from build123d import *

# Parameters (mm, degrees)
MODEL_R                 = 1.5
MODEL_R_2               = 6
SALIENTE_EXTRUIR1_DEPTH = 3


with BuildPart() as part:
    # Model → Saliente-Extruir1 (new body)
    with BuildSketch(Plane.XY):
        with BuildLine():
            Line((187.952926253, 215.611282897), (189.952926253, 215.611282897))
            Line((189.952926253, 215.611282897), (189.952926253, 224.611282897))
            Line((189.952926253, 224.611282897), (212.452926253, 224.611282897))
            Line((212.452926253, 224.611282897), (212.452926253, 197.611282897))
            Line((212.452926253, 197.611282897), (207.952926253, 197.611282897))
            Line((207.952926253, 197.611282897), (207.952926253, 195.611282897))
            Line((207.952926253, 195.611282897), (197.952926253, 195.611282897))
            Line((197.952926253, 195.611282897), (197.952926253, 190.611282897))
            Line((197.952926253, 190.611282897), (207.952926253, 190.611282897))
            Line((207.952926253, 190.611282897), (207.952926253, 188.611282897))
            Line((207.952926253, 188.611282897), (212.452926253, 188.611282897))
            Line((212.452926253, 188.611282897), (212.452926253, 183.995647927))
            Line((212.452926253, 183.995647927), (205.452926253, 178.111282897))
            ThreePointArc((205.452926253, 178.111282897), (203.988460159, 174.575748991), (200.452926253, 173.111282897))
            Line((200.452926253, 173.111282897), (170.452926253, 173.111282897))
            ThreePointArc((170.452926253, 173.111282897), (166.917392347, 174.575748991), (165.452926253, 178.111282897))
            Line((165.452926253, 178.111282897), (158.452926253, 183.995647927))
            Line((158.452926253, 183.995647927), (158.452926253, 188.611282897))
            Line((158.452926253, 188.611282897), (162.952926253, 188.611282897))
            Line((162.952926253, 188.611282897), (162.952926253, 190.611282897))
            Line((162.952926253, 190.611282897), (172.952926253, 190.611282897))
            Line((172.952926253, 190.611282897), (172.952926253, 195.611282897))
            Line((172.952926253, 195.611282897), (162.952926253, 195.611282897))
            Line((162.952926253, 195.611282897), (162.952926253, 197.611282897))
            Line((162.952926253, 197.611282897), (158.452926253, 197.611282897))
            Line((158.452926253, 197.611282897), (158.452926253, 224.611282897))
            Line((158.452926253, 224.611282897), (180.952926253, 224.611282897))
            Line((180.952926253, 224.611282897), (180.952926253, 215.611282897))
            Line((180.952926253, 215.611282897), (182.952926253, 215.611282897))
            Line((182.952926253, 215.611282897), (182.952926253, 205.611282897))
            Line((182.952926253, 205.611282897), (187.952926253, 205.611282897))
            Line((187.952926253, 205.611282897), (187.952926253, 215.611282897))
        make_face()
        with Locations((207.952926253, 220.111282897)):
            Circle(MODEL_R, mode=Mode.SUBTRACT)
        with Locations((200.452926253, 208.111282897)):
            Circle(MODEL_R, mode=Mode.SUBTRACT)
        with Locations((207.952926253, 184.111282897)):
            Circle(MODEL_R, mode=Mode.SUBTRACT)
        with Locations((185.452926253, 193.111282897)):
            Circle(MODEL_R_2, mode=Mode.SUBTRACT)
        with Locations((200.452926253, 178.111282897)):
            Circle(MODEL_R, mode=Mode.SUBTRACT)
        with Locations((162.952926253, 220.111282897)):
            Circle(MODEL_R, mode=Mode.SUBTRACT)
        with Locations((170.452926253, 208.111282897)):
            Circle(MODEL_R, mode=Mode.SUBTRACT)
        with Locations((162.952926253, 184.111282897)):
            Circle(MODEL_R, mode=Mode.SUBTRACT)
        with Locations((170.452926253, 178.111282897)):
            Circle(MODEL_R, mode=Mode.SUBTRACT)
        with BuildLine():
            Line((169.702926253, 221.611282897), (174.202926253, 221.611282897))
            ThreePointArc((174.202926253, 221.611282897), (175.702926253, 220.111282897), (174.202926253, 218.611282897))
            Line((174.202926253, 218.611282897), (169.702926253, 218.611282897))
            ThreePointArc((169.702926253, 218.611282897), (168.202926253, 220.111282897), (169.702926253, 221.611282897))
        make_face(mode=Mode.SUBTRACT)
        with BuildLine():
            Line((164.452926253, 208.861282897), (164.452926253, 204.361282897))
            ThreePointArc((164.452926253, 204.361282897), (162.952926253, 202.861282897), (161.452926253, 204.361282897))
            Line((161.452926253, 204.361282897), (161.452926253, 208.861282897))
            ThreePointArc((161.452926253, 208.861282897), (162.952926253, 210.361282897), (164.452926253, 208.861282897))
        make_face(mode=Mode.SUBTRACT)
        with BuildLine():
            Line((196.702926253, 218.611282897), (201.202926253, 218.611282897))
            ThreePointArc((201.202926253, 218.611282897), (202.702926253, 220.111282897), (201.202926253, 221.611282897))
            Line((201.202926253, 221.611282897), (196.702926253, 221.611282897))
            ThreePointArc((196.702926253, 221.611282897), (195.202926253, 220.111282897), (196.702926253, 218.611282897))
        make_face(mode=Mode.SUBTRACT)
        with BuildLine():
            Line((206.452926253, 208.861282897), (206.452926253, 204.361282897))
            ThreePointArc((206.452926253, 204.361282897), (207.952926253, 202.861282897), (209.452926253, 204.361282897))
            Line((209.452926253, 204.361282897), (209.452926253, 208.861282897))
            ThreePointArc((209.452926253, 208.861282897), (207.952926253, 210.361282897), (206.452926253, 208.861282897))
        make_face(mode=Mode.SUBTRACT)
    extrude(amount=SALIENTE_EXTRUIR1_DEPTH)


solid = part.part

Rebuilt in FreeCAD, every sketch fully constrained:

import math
import FreeCAD as App
import Part
import Sketcher

V = App.Vector
Q = App.Units.Quantity

doc = App.newDocument("Part")
body = doc.addObject("PartDesign::Body", "Body")

# Sketch on XY plane
sketch1 = body.newObject("Sketcher::SketchObject", "Sketch")
sketch1.AttachmentSupport = (doc.getObject("XY_Plane"), [""])
sketch1.MapMode = "FlatFace"
sketch1.addGeometry([
    Part.LineSegment(V(190, 215.6, 0), V(188, 215.6, 0)),  # 0
    Part.LineSegment(V(188, 215.6, 0), V(188, 205.6, 0)),  # 1
    Part.LineSegment(V(188, 205.6, 0), V(183, 205.6, 0)),  # 2
    Part.LineSegment(V(183, 205.6, 0), V(183, 215.6, 0)),  # 3
    Part.LineSegment(V(183, 215.6, 0), V(181, 215.6, 0)),  # 4
    Part.LineSegment(V(181, 215.6, 0), V(181, 224.6, 0)),  # 5
    Part.LineSegment(V(181, 224.6, 0), V(158.5, 224.6, 0)),  # 6
    Part.LineSegment(V(158.5, 224.6, 0), V(158.5, 197.6, 0)),  # 7
    Part.LineSegment(V(158.5, 197.6, 0), V(163, 197.6, 0)),  # 8
    Part.LineSegment(V(163, 197.6, 0), V(163, 195.6, 0)),  # 9
    Part.LineSegment(V(163, 195.6, 0), V(173, 195.6, 0)),  # 10
    Part.LineSegment(V(173, 195.6, 0), V(173, 190.6, 0)),  # 11
    Part.LineSegment(V(173, 190.6, 0), V(163, 190.6, 0)),  # 12
    Part.LineSegment(V(163, 190.6, 0), V(163, 188.6, 0)),  # 13
    Part.LineSegment(V(163, 188.6, 0), V(158.5, 188.6, 0)),  # 14
    Part.LineSegment(V(158.5, 188.6, 0), V(158.5, 184, 0)),  # 15
    Part.LineSegment(V(158.5, 184, 0), V(165.5, 178.1, 0)),  # 16
    Part.ArcOfCircle(Part.Circle(V(170.5, 178.1, 0), V(0, 0, 1), 5), math.radians(180), math.radians(270)),  # 17
    Part.LineSegment(V(170.5, 173.1, 0), V(200.5, 173.1, 0)),  # 18
    Part.ArcOfCircle(Part.Circle(V(200.5, 178.1, 0), V(0, 0, 1), 5), math.radians(-90), math.radians(0)),  # 19
    Part.LineSegment(V(205.5, 178.1, 0), V(212.5, 184, 0)),  # 20
    Part.LineSegment(V(212.5, 184, 0), V(212.5, 188.6, 0)),  # 21
    Part.LineSegment(V(212.5, 188.6, 0), V(208, 188.6, 0)),  # 22
    Part.LineSegment(V(208, 188.6, 0), V(208, 190.6, 0)),  # 23
    Part.LineSegment(V(208, 190.6, 0), V(198, 190.6, 0)),  # 24
    Part.LineSegment(V(198, 190.6, 0), V(198, 195.6, 0)),  # 25
    Part.LineSegment(V(198, 195.6, 0), V(208, 195.6, 0)),  # 26
    Part.LineSegment(V(208, 195.6, 0), V(208, 197.6, 0)),  # 27
    Part.LineSegment(V(208, 197.6, 0), V(212.5, 197.6, 0)),  # 28
    Part.LineSegment(V(212.5, 197.6, 0), V(212.5, 224.6, 0)),  # 29
    Part.LineSegment(V(212.5, 224.6, 0), V(190, 224.6, 0)),  # 30
    Part.LineSegment(V(190, 224.6, 0), V(190, 215.6, 0)),  # 31
    Part.Circle(V(200.5, 178.1, 0), V(0, 0, 1), 1.5),  # 32
    Part.Circle(V(208, 184.1, 0), V(0, 0, 1), 1.5),  # 33
    Part.Circle(V(170.5, 178.1, 0), V(0, 0, 1), 1.5),  # 34
    Part.Circle(V(163, 184.1, 0), V(0, 0, 1), 1.5),  # 35
    Part.Circle(V(185.5, 193.1, 0), V(0, 0, 1), 6),  # 36
    Part.ArcOfCircle(Part.Circle(V(208, 208.9, 0), V(0, 0, 1), 1.5), math.radians(0), math.radians(180)),  # 37
    Part.LineSegment(V(209.5, 208.9, 0), V(209.5, 204.4, 0)),  # 38
    Part.ArcOfCircle(Part.Circle(V(208, 204.4, 0), V(0, 0, 1), 1.5), math.radians(180), math.radians(360)),  # 39
    Part.LineSegment(V(206.5, 204.4, 0), V(206.5, 208.9, 0)),  # 40
    Part.Circle(V(200.5, 208.1, 0), V(0, 0, 1), 1.5),  # 41
    Part.Circle(V(208, 220.1, 0), V(0, 0, 1), 1.5),  # 42
    Part.ArcOfCircle(Part.Circle(V(196.7, 220.1, 0), V(0, 0, 1), 1.5), math.radians(90), math.radians(270)),  # 43
    Part.LineSegment(V(196.7, 221.6, 0), V(201.2, 221.6, 0)),  # 44
    Part.ArcOfCircle(Part.Circle(V(201.2, 220.1, 0), V(0, 0, 1), 1.5), math.radians(-90), math.radians(90)),  # 45
    Part.LineSegment(V(201.2, 218.6, 0), V(196.7, 218.6, 0)),  # 46
    Part.Circle(V(170.5, 208.1, 0), V(0, 0, 1), 1.5),  # 47
    Part.LineSegment(V(164.5, 208.9, 0), V(164.5, 204.4, 0)),  # 48
    Part.ArcOfCircle(Part.Circle(V(163, 204.4, 0), V(0, 0, 1), 1.5), math.radians(180), math.radians(360)),  # 49
    Part.LineSegment(V(161.5, 204.4, 0), V(161.5, 208.9, 0)),  # 50
    Part.ArcOfCircle(Part.Circle(V(163, 208.9, 0), V(0, 0, 1), 1.5), math.radians(0), math.radians(180)),  # 51
    Part.LineSegment(V(169.7, 221.6, 0), V(174.2, 221.6, 0)),  # 52
    Part.ArcOfCircle(Part.Circle(V(174.2, 220.1, 0), V(0, 0, 1), 1.5), math.radians(-90), math.radians(90)),  # 53
    Part.LineSegment(V(174.2, 218.6, 0), V(169.7, 218.6, 0)),  # 54
    Part.ArcOfCircle(Part.Circle(V(169.7, 220.1, 0), V(0, 0, 1), 1.5), math.radians(90), math.radians(270)),  # 55
    Part.Circle(V(163, 220.1, 0), V(0, 0, 1), 1.5),  # 56
], False)
sketch1.addConstraint([
    Sketcher.Constraint("Coincident", 0, 2, 1, 1),
    Sketcher.Constraint("Coincident", 1, 2, 2, 1),
    Sketcher.Constraint("Coincident", 2, 2, 3, 1),
    Sketcher.Constraint("Coincident", 3, 2, 4, 1),
    Sketcher.Constraint("Coincident", 4, 2, 5, 1),
    Sketcher.Constraint("Coincident", 5, 2, 6, 1),
    Sketcher.Constraint("Coincident", 6, 2, 7, 1),
    Sketcher.Constraint("Coincident", 7, 2, 8, 1),
    Sketcher.Constraint("Coincident", 8, 2, 9, 1),
    Sketcher.Constraint("Coincident", 9, 2, 10, 1),
    Sketcher.Constraint("Coincident", 10, 2, 11, 1),
    Sketcher.Constraint("Coincident", 11, 2, 12, 1),
    Sketcher.Constraint("Coincident", 12, 2, 13, 1),
    Sketcher.Constraint("Coincident", 13, 2, 14, 1),
    Sketcher.Constraint("Coincident", 14, 2, 15, 1),
    Sketcher.Constraint("Coincident", 15, 2, 16, 1),
    Sketcher.Constraint("Coincident", 16, 2, 17, 1),
    Sketcher.Constraint("Tangent", 17, 2, 18, 1),
    Sketcher.Constraint("Tangent", 18, 2, 19, 1),
    Sketcher.Constraint("Coincident", 19, 2, 20, 1),
    Sketcher.Constraint("Coincident", 20, 2, 21, 1),
    Sketcher.Constraint("Coincident", 21, 2, 22, 1),
    Sketcher.Constraint("Coincident", 22, 2, 23, 1),
    Sketcher.Constraint("Coincident", 23, 2, 24, 1),
    Sketcher.Constraint("Coincident", 24, 2, 25, 1),
    Sketcher.Constraint("Coincident", 25, 2, 26, 1),
    Sketcher.Constraint("Coincident", 26, 2, 27, 1),
    Sketcher.Constraint("Coincident", 27, 2, 28, 1),
    Sketcher.Constraint("Coincident", 28, 2, 29, 1),
    Sketcher.Constraint("Coincident", 29, 2, 30, 1),
    Sketcher.Constraint("Coincident", 30, 2, 31, 1),
    Sketcher.Constraint("Coincident", 31, 2, 0, 1),
    Sketcher.Constraint("Tangent", 37, 1, 38, 1),
    Sketcher.Constraint("Tangent", 38, 2, 39, 2),
    Sketcher.Constraint("Tangent", 39, 1, 40, 1),
    Sketcher.Constraint("Tangent", 40, 2, 37, 2),
    Sketcher.Constraint("Tangent", 43, 1, 44, 1),
    Sketcher.Constraint("Tangent", 44, 2, 45, 2),
    Sketcher.Constraint("Tangent", 45, 1, 46, 1),
    Sketcher.Constraint("Tangent", 46, 2, 43, 2),
    Sketcher.Constraint("Tangent", 48, 2, 49, 2),
    Sketcher.Constraint("Tangent", 49, 1, 50, 1),
    Sketcher.Constraint("Tangent", 50, 2, 51, 2),
    Sketcher.Constraint("Tangent", 51, 1, 48, 1),
    Sketcher.Constraint("Tangent", 52, 2, 53, 2),
    Sketcher.Constraint("Tangent", 53, 1, 54, 1),
    Sketcher.Constraint("Tangent", 54, 2, 55, 2),
    Sketcher.Constraint("Tangent", 55, 1, 52, 1),
    Sketcher.Constraint("Horizontal", 0),
    Sketcher.Constraint("Vertical", 1),
    Sketcher.Constraint("Horizontal", 2),
    Sketcher.Constraint("Vertical", 3),
    Sketcher.Constraint("Horizontal", 4),
    Sketcher.Constraint("Vertical", 5),
    Sketcher.Constraint("Horizontal", 6),
    Sketcher.Constraint("Vertical", 7),
    Sketcher.Constraint("Horizontal", 8),
    Sketcher.Constraint("Vertical", 9),
    Sketcher.Constraint("Horizontal", 10),
    Sketcher.Constraint("Vertical", 11),
    Sketcher.Constraint("Horizontal", 12),
    Sketcher.Constraint("Vertical", 13),
    Sketcher.Constraint("Horizontal", 14),
    Sketcher.Constraint("Vertical", 15),
    Sketcher.Constraint("Horizontal", 18),
    Sketcher.Constraint("Vertical", 21),
    Sketcher.Constraint("Horizontal", 22),
    Sketcher.Constraint("Vertical", 23),
    Sketcher.Constraint("Horizontal", 24),
    Sketcher.Constraint("Vertical", 25),
    Sketcher.Constraint("Horizontal", 26),
    Sketcher.Constraint("Vertical", 27),
    Sketcher.Constraint("Horizontal", 28),
    Sketcher.Constraint("Vertical", 29),
    Sketcher.Constraint("Horizontal", 30),
    Sketcher.Constraint("Vertical", 31),
    Sketcher.Constraint("Vertical", 38),
    Sketcher.Constraint("Vertical", 40),
    Sketcher.Constraint("Horizontal", 44),
    Sketcher.Constraint("Horizontal", 46),
    Sketcher.Constraint("Vertical", 48),
    Sketcher.Constraint("Vertical", 50),
    Sketcher.Constraint("Horizontal", 52),
    Sketcher.Constraint("Horizontal", 54),
    Sketcher.Constraint("Coincident", 32, 3, 19, 3),
    Sketcher.Constraint("Coincident", 34, 3, 17, 3),
    Sketcher.Constraint("Equal", 17, 19),
    Sketcher.Constraint("Equal", 32, 33),
    Sketcher.Constraint("Equal", 33, 34),
    Sketcher.Constraint("Equal", 34, 35),
    Sketcher.Constraint("Equal", 35, 37),
    Sketcher.Constraint("Equal", 39, 41),
    Sketcher.Constraint("Equal", 41, 42),
    Sketcher.Constraint("Equal", 42, 43),
    Sketcher.Constraint("Equal", 45, 47),
    Sketcher.Constraint("Equal", 47, 49),
    Sketcher.Constraint("Equal", 51, 53),
    Sketcher.Constraint("Equal", 55, 56),
    Sketcher.Constraint("Horizontal", 33, 3, 35, 3),
    Sketcher.Constraint("Horizontal", 42, 3, 43, 3),
    Sketcher.Constraint("Horizontal", 41, 3, 47, 3),
    Sketcher.Constraint("Horizontal", 39, 3, 49, 3),
    Sketcher.Constraint("Horizontal", 37, 3, 51, 3),
    Sketcher.Constraint("Horizontal", 45, 3, 53, 3),
    Sketcher.Constraint("Horizontal", 55, 3, 56, 3),
    Sketcher.Constraint("Horizontal", 0, 2, 3, 2),
    Sketcher.Constraint("Horizontal", 34, 3, 16, 2),
    Sketcher.Constraint("Horizontal", 16, 2, 19, 2),
    Sketcher.Constraint("Horizontal", 15, 2, 20, 2),
    Sketcher.Constraint("Horizontal", 14, 2, 21, 2),
    Sketcher.Constraint("Horizontal", 12, 2, 23, 2),
    Sketcher.Constraint("Horizontal", 10, 2, 25, 2),
    Sketcher.Constraint("Horizontal", 8, 2, 27, 2),
    Sketcher.Constraint("Horizontal", 6, 2, 29, 2),
    Sketcher.Constraint("Vertical", 33, 3, 37, 3),
    Sketcher.Constraint("Vertical", 32, 3, 41, 3),
    Sketcher.Constraint("Vertical", 39, 3, 42, 3),
    Sketcher.Constraint("Vertical", 34, 3, 47, 3),
    Sketcher.Constraint("Vertical", 35, 3, 49, 3),
    Sketcher.Constraint("Vertical", 51, 3, 56, 3),
    Sketcher.Constraint("Vertical", 56, 3, 8, 2),
    Sketcher.Constraint("Vertical", 9, 2, 12, 2),
    Sketcher.Constraint("Vertical", 7, 2, 14, 2),
    Sketcher.Constraint("Vertical", 42, 3, 22, 2),
    Sketcher.Constraint("Vertical", 23, 2, 26, 2),
    Sketcher.Constraint("Vertical", 21, 2, 28, 2),
    Sketcher.Constraint("Equal", 0, 4),
    Sketcher.Constraint("Equal", 14, 22),
    Sketcher.Constraint("Equal", 12, 24),
    Sketcher.Constraint("Equal", 6, 30),
    Sketcher.Constraint("Equal", 28, 44),
    Sketcher.Constraint("Equal", 46, 52),
    Sketcher.Constraint("Equal", 26, 1),
    Sketcher.Constraint("Equal", 4, 9),
    Sketcher.Constraint("Equal", 2, 11),
    Sketcher.Constraint("Equal", 9, 13),
    Sketcher.Constraint("Equal", 54, 38),
    Sketcher.Constraint("Equal", 16, 20),
    Sketcher.Constraint("Diameter", 32, Q("3 mm")),
    Sketcher.Constraint("Diameter", 36, Q("12 mm")),
    Sketcher.Constraint("Radius", 17, Q("5 mm")),
    Sketcher.Constraint("DistanceX", 0, 2, 0, 1, Q("2 mm")),
    Sketcher.Constraint("DistanceX", 2, 2, 2, 1, Q("5 mm")),
    Sketcher.Constraint("DistanceX", 10, 1, 10, 2, Q("10 mm")),
    Sketcher.Constraint("DistanceX", 18, 1, 18, 2, Q("30 mm")),
    Sketcher.Constraint("DistanceY", 5, 1, 5, 2, Q("9 mm")),
    Sketcher.Constraint("DistanceY", 7, 2, 7, 1, Q("27 mm")),
    Sketcher.Constraint("DistanceX", 6, 2, 6, 1, Q("22.5 mm")),
    Sketcher.Constraint("DistanceX", 8, 1, 8, 2, Q("4.5 mm")),
    Sketcher.Constraint("Distance", 16, Q("9.144712 mm")),
    Sketcher.Constraint("DistanceY", 15, 2, 15, 1, Q("4.615635 mm")),
    Sketcher.Constraint("DistanceX", -1, 1, 17, 3, Q("170.452926 mm")),
    Sketcher.Constraint("DistanceY", -1, 1, 17, 3, Q("178.111283 mm")),
    Sketcher.Constraint("DistanceY", -1, 1, 33, 3, Q("184.111283 mm")),
    Sketcher.Constraint("DistanceX", -1, 1, 36, 3, Q("185.452926 mm")),
    Sketcher.Constraint("DistanceY", -1, 1, 36, 3, Q("193.111283 mm")),
    Sketcher.Constraint("DistanceY", -1, 1, 37, 3, Q("208.861283 mm")),
    Sketcher.Constraint("DistanceY", -1, 1, 41, 3, Q("208.111283 mm")),
    Sketcher.Constraint("DistanceY", -1, 1, 42, 3, Q("220.111283 mm")),
    Sketcher.Constraint("DistanceX", -1, 1, 43, 3, Q("196.702926 mm")),
    Sketcher.Constraint("DistanceX", -1, 1, 53, 3, Q("174.202926 mm")),
])
pad1 = body.newObject("PartDesign::Pad", "Pad")
pad1.Profile = sketch1
pad1.Length = 3

doc.recompute()
